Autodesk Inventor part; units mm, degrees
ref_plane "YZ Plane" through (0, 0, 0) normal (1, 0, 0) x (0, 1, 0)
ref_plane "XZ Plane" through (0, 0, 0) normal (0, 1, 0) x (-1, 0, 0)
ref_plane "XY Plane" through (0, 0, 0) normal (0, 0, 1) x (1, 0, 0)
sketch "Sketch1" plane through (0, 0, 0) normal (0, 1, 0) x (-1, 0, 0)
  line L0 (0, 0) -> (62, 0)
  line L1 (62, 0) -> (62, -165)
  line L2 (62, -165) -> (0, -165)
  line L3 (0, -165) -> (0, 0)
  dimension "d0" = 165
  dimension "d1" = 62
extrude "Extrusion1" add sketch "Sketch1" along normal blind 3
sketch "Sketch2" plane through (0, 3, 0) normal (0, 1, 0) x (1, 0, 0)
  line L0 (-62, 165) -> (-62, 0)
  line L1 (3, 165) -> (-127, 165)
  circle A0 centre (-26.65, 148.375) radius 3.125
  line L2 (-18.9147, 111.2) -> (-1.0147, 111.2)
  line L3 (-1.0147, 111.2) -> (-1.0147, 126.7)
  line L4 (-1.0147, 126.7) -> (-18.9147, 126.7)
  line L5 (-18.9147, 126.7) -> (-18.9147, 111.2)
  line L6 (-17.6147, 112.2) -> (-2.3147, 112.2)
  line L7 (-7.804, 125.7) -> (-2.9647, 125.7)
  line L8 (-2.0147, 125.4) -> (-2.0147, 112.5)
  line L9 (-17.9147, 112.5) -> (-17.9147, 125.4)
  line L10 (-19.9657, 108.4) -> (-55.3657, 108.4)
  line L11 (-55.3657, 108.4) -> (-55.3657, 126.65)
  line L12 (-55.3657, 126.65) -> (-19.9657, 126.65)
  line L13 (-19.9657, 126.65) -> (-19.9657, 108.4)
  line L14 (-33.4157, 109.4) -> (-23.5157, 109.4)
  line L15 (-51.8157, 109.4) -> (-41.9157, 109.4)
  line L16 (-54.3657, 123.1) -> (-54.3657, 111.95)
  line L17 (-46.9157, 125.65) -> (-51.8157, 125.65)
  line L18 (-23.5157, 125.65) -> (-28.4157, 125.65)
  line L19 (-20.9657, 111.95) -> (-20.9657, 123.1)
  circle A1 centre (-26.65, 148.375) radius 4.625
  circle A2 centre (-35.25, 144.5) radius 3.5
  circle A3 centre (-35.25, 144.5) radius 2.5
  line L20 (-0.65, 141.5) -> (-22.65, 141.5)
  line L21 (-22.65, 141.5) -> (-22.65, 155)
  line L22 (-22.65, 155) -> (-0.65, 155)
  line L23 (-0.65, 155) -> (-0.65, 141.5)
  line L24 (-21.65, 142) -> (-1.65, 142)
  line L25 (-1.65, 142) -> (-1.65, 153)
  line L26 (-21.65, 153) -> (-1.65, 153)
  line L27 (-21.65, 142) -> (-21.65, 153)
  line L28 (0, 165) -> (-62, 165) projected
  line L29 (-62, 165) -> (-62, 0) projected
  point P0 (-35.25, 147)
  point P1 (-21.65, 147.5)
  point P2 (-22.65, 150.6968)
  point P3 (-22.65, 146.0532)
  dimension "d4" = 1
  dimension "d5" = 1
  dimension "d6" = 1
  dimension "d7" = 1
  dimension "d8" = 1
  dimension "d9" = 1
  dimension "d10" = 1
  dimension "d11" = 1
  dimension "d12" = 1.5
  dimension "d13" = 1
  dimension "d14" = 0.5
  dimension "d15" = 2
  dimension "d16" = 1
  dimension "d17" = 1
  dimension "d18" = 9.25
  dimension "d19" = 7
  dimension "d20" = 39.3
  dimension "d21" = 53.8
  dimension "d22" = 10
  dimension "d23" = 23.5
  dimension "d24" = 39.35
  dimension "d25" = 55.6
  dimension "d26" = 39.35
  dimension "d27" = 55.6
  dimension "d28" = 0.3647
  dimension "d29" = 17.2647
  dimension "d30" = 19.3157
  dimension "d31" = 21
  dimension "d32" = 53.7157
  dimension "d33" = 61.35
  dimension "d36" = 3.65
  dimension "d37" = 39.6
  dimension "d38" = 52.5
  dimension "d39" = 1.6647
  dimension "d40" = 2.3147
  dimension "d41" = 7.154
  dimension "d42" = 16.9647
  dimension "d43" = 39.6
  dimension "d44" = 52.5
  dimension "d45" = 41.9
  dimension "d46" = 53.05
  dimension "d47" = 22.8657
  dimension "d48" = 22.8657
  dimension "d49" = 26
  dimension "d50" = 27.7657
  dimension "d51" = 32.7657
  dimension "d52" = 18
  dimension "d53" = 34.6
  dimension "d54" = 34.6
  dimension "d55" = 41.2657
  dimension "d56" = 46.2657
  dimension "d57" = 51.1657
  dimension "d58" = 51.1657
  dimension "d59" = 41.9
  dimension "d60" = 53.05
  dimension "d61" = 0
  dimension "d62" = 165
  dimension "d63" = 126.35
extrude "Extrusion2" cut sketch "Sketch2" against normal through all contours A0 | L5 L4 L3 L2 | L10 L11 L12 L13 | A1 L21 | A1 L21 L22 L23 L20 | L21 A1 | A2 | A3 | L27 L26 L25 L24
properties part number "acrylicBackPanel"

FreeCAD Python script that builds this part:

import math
import FreeCAD as App
import Part
import Sketcher

V = App.Vector

doc = App.newDocument("Part")
body = doc.addObject("PartDesign::Body", "Body")

# Sketch on XZ plane
sketch1 = doc.addObject("Sketcher::SketchObject", "Sketch")
body.addObject(sketch1)
sketch1.AttachmentSupport = (doc.XZ_Plane, [""])
sketch1.MapMode = "FlatFace"
sketch1.addGeometry([
    Part.LineSegment(V(-62, 0, 0), V(0, 0, 0)),
    Part.LineSegment(V(0, 0, 0), V(0, -165, 0)),
    Part.LineSegment(V(0, -165, 0), V(-62, -165, 0)),
    Part.LineSegment(V(-62, -165, 0), V(-62, 0, 0)),
], False)
sketch1.addConstraint([
    Sketcher.Constraint("Coincident", 0, 2, 1, 1),
    Sketcher.Constraint("Coincident", 1, 2, 2, 1),
    Sketcher.Constraint("Coincident", 2, 2, 3, 1),
    Sketcher.Constraint("Coincident", 3, 2, 0, 1),
    Sketcher.Constraint("Horizontal", 0),
    Sketcher.Constraint("Vertical", 1),
    Sketcher.Constraint("Horizontal", 2),
    Sketcher.Constraint("Vertical", 3),
    Sketcher.Constraint("Coincident", 0, 2, -1, 1),
    Sketcher.Constraint("DistanceX", 0, 1, 0, 2, 62.0),
    Sketcher.Constraint("DistanceY", 1, 2, 1, 1, 165.0),
])
pad1 = doc.addObject("PartDesign::Pad", "Pad")
body.addObject(pad1)
pad1.Profile = sketch1
pad1.Length = 3
pad1.Reversed = True

# Sketch on XZ plane
sketch2 = doc.addObject("Sketcher::SketchObject", "Sketch001")
body.addObject(sketch2)
sketch2.AttachmentSupport = (doc.XZ_Plane, [""])
sketch2.MapMode = "FlatFace"
sketch2.AttachmentOffset = App.Placement(V(0, 0, -3), App.Rotation())
sketch2.addGeometry([
    Part.ArcOfCircle(Part.Circle(V(-26.6, -148.4, 0), V(0, 0, 1), 4.6), math.radians(30), math.radians(330)),  # 0
    Part.LineSegment(V(-22.6, -146.1, 0), V(-22.6, -141.5, 0)),  # 1
    Part.LineSegment(V(-22.6, -141.5, 0), V(-0.7, -141.5, 0)),  # 2
    Part.LineSegment(V(-0.7, -141.5, 0), V(-0.7, -155, 0)),  # 3
    Part.LineSegment(V(-0.7, -155, 0), V(-22.6, -155, 0)),  # 4
    Part.LineSegment(V(-22.6, -155, 0), V(-22.6, -150.7, 0)),  # 5
    Part.LineSegment(V(-18.9, -126.7, 0), V(-18.9, -111.2, 0)),  # 6
    Part.LineSegment(V(-18.9, -111.2, 0), V(-1, -111.2, 0)),  # 7
    Part.LineSegment(V(-1, -111.2, 0), V(-1, -126.7, 0)),  # 8
    Part.LineSegment(V(-1, -126.7, 0), V(-18.9, -126.7, 0)),  # 9
    Part.LineSegment(V(-55.4, -108.4, 0), V(-20, -108.4, 0)),  # 10
    Part.LineSegment(V(-20, -108.4, 0), V(-20, -126.7, 0)),  # 11
    Part.LineSegment(V(-20, -126.7, 0), V(-55.4, -126.7, 0)),  # 12
    Part.LineSegment(V(-55.4, -126.7, 0), V(-55.4, -108.4, 0)),  # 13
    Part.Circle(V(-35.2, -144.5, 0), V(0, 0, 1), 3.5),  # 14
], False)
sketch2.addConstraint([
    Sketcher.Constraint("Coincident", 0, 1, 1, 1),
    Sketcher.Constraint("Coincident", 1, 2, 2, 1),
    Sketcher.Constraint("Coincident", 2, 2, 3, 1),
    Sketcher.Constraint("Coincident", 3, 2, 4, 1),
    Sketcher.Constraint("Coincident", 4, 2, 5, 1),
    Sketcher.Constraint("Coincident", 5, 2, 0, 2),
    Sketcher.Constraint("Coincident", 6, 2, 7, 1),
    Sketcher.Constraint("Coincident", 7, 2, 8, 1),
    Sketcher.Constraint("Coincident", 8, 2, 9, 1),
    Sketcher.Constraint("Coincident", 9, 2, 6, 1),
    Sketcher.Constraint("Coincident", 10, 2, 11, 1),
    Sketcher.Constraint("Coincident", 11, 2, 12, 1),
    Sketcher.Constraint("Coincident", 12, 2, 13, 1),
    Sketcher.Constraint("Coincident", 13, 2, 10, 1),
    Sketcher.Constraint("Vertical", 1),
    Sketcher.Constraint("Horizontal", 2),
    Sketcher.Constraint("Vertical", 3),
    Sketcher.Constraint("Horizontal", 4),
    Sketcher.Constraint("Vertical", 5),
    Sketcher.Constraint("Vertical", 6),
    Sketcher.Constraint("Horizontal", 7),
    Sketcher.Constraint("Vertical", 8),
    Sketcher.Constraint("Horizontal", 9),
    Sketcher.Constraint("Horizontal", 10),
    Sketcher.Constraint("Vertical", 11),
    Sketcher.Constraint("Horizontal", 12),
    Sketcher.Constraint("Vertical", 13),
    Sketcher.Constraint("Vertical", 1, 2, 4, 2),
    Sketcher.Constraint("Diameter", 14, 7.0),
    Sketcher.Constraint("Radius", 0, 4.625),
    Sketcher.Constraint("DistanceX", 0, 3, 2, 2, 26.0),
    Sketcher.Constraint("DistanceX", 14, 3, 2, 2, 34.6),
    Sketcher.Constraint("DistanceX", 2, 1, 2, 2, 22.0),
    Sketcher.Constraint("DistanceX", 7, 1, 7, 2, 17.9),
    Sketcher.Constraint("DistanceX", 10, 1, 10, 2, 35.4),
    Sketcher.Constraint("DistanceY", 3, 2, 3, 1, 13.5),
    Sketcher.Constraint("DistanceY", 6, 1, 6, 2, 15.5),
    Sketcher.Constraint("DistanceY", 3, 2, -1, 1, 155.0),
    Sketcher.Constraint("DistanceY", 14, 3, 1, 2, 3.0),
    Sketcher.Constraint("DistanceY", 11, 2, 11, 1, 18.25),
    Sketcher.Constraint("DistanceY", 6, 2, -1, 1, 111.2),
    Sketcher.Constraint("DistanceY", 10, 2, -1, 1, 108.4),
    Sketcher.Constraint("DistanceX", 7, 2, 2, 2, 0.3647),
    Sketcher.Constraint("DistanceX", 0, 3, -1, 1, 26.65),
    Sketcher.Constraint("DistanceY", 1, 1, 1, 2, 4.5532),
    Sketcher.Constraint("DistanceX", 10, 2, 6, 2, 1.051),
])
pocket1 = doc.addObject("PartDesign::Pocket", "Pocket")
body.addObject(pocket1)
pocket1.Profile = sketch2
pocket1.Type = "ThroughAll"
pocket1.Reversed = True

doc.recompute()
